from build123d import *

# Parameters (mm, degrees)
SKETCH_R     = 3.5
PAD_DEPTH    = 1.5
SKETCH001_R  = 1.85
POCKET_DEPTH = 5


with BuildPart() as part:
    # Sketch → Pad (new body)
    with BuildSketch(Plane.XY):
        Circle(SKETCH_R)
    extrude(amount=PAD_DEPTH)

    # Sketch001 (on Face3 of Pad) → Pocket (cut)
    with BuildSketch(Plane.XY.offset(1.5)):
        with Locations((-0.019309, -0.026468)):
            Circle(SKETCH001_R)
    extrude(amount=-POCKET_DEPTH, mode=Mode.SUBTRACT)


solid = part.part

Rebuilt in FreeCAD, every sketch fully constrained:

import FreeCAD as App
import Part
import Sketcher
from FreeCAD import Vector
Q = App.Units.Quantity

doc = App.newDocument("Part")
body = doc.addObject("PartDesign::Body", "Body")

sketch1 = body.newObject("Sketcher::SketchObject", "Sketch")
sketch1.AttachmentSupport = (doc.getObject("XY_Plane"), [""])
sketch1.MapMode = "FlatFace"
sketch1.addGeometry(Part.Circle(Vector(0, 0, 0), Vector(0, 0, 1), 3.5), False)
sketch1.addConstraint([
    Sketcher.Constraint("Coincident", 0, 3, -1, 1),
    Sketcher.Constraint("Diameter", 0, Q("7 mm")),
])
pad1 = body.newObject("PartDesign::Pad", "Pad")
pad1.Profile = sketch1
pad1.Length = 1.5

sketch2 = body.newObject("Sketcher::SketchObject", "Sketch001")
sketch2.AttachmentSupport = (doc.getObject("XY_Plane"), [""])
sketch2.MapMode = "FlatFace"
sketch2.AttachmentOffset = App.Placement(Vector(0, 0, 1.5), App.Rotation())
sketch2.addGeometry(Part.Circle(Vector(0, 0, 0), Vector(0, 0, 1), 1.9), False)
sketch2.addConstraint([
    Sketcher.Constraint("Diameter", 0, Q("3.7 mm")),
    Sketcher.Constraint("DistanceX", 0, 3, -1, 1, Q("0.019309 mm")),
    Sketcher.Constraint("DistanceY", 0, 3, -1, 1, Q("0.026468 mm")),
])
pocket1 = body.newObject("PartDesign::Pocket", "Pocket")
pocket1.Profile = sketch2
pocket1.Length = 5

doc.recompute()
